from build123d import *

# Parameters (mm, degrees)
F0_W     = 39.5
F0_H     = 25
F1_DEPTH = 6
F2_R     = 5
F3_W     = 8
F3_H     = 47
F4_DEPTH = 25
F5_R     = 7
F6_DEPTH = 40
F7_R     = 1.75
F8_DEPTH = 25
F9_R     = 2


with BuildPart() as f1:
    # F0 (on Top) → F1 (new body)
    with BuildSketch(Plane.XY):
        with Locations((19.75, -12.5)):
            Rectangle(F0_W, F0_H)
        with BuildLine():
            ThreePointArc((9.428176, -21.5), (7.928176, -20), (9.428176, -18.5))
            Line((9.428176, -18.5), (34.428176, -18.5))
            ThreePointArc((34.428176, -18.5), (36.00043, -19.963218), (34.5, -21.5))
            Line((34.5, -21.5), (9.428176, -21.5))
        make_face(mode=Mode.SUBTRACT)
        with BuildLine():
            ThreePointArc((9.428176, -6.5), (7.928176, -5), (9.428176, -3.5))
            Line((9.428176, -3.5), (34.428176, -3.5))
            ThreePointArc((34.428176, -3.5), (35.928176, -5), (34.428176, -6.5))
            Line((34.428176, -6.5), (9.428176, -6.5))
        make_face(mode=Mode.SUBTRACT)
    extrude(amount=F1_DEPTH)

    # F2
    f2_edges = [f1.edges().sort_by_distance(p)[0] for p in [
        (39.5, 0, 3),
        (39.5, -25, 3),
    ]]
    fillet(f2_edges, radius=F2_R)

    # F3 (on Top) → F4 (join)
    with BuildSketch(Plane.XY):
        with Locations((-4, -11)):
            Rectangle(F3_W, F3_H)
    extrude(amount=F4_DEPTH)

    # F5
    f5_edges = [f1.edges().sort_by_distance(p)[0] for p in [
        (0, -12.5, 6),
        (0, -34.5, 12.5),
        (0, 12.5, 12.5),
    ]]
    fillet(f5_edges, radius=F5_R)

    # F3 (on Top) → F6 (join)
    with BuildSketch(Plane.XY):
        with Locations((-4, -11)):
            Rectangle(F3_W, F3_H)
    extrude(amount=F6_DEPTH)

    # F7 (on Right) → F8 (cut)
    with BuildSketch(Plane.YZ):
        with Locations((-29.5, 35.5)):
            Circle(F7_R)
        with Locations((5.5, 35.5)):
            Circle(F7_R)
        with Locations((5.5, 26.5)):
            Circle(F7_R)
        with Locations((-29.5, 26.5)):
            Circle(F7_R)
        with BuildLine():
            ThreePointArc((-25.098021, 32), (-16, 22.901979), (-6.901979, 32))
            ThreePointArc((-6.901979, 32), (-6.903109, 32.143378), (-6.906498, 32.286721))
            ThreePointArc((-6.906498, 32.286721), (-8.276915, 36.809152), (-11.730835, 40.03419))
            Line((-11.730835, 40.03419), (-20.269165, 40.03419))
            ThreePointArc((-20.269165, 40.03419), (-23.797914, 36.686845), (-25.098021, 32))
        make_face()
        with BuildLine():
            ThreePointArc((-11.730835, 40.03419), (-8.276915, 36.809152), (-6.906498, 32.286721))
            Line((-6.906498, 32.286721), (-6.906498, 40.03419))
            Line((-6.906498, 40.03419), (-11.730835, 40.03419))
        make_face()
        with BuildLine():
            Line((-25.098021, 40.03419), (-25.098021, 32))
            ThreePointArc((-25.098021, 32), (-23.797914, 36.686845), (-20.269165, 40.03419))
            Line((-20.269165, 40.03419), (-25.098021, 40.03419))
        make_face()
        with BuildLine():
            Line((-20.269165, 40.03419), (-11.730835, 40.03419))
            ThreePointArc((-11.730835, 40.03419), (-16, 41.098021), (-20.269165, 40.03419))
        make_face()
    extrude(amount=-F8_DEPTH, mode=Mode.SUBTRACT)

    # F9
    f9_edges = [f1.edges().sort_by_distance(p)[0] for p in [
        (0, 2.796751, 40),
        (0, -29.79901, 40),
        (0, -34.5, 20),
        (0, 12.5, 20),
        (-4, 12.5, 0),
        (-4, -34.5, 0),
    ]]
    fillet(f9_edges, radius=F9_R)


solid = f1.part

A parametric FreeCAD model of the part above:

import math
import FreeCAD as App
import Part
import Sketcher
from FreeCAD import Vector


def edges_at(feature, points):
    """Names of the edges that pass closest to the given points."""
    edges = feature.Shape.Edges
    near = lambda p: min(range(len(edges)), key=lambda i: edges[i].distToShape(Part.Vertex(*p))[0])
    return sorted({f"Edge{near(p) + 1}" for p in points})


def add_polygon(sketch, points):
    """Adds a closed chain of lines whose ends are joined by coincident constraints."""
    first, n = sketch.GeometryCount, len(points)
    for a, b in zip(points, points[1:] + points[:1]):
        sketch.addGeometry(Part.LineSegment(App.Vector(*a, 0), App.Vector(*b, 0)), False)
    for i in range(n):
        sketch.addConstraint(Sketcher.Constraint("Coincident", first + i, 2, first + (i + 1) % n, 1))

doc = App.newDocument("Part")
body = doc.addObject("PartDesign::Body", "Body")

# Sketch on XY plane
sketch1 = doc.addObject("Sketcher::SketchObject", "Sketch")
body.addObject(sketch1)
sketch1.AttachmentSupport = (doc.XY_Plane, [""])
sketch1.MapMode = "FlatFace"
add_polygon(sketch1, [(0, 0), (0, -25), (39.5, -25), (39.5, 0)])  # lines 0-3
sketch1.addGeometry(Part.LineSegment(Vector(34.5, -21.5, 0), Vector(9.428176, -21.5, 0)), False)  # 4
sketch1.addGeometry(Part.ArcOfCircle(Part.Circle(Vector(9.428176, -20, 0), Vector(0, 0, 1), 1.5), math.radians(90), math.radians(270)), False)  # 5
sketch1.addGeometry(Part.LineSegment(Vector(9.428176, -18.5, 0), Vector(34.428176, -18.5, 0)), False)  # 6
sketch1.addGeometry(Part.ArcOfCircle(Part.Circle(Vector(34.5, -19.99914, 0), Vector(0, 0, 1), 1.50086), math.radians(-90.000006), math.radians(92.742957)), False)  # 7
sketch1.addGeometry(Part.LineSegment(Vector(34.428176, -6.5, 0), Vector(9.428176, -6.5, 0)), False)  # 8
sketch1.addGeometry(Part.ArcOfCircle(Part.Circle(Vector(9.428176, -5, 0), Vector(0, 0, 1), 1.5), math.radians(90), math.radians(270)), False)  # 9
sketch1.addGeometry(Part.LineSegment(Vector(9.428176, -3.5, 0), Vector(34.428176, -3.5, 0)), False)  # 10
sketch1.addGeometry(Part.ArcOfCircle(Part.Circle(Vector(34.428176, -5, 0), Vector(0, 0, 1), 1.5), math.radians(-90), math.radians(90)), False)  # 11
sketch1.addConstraint([
    Sketcher.Constraint("Tangent", 4, 2, 5, 2),
    Sketcher.Constraint("Tangent", 5, 1, 6, 1),
    Sketcher.Constraint("Coincident", 6, 2, 7, 2),
    Sketcher.Constraint("Tangent", 7, 1, 4, 1),
    Sketcher.Constraint("Tangent", 8, 2, 9, 2),
    Sketcher.Constraint("Tangent", 9, 1, 10, 1),
    Sketcher.Constraint("Tangent", 10, 2, 11, 2),
    Sketcher.Constraint("Tangent", 11, 1, 8, 1),
    Sketcher.Constraint("Vertical", 0),
    Sketcher.Constraint("Horizontal", 1),
    Sketcher.Constraint("Vertical", 2),
    Sketcher.Constraint("Horizontal", 3),
    Sketcher.Constraint("Horizontal", 4),
    Sketcher.Constraint("Horizontal", 6),
    Sketcher.Constraint("Horizontal", 8),
    Sketcher.Constraint("Horizontal", 10),
    Sketcher.Constraint("Coincident", 3, 2, -1, 1),
    Sketcher.Constraint("Equal", 5, 9),
    Sketcher.Constraint("Vertical", 5, 3, 9, 3),
    Sketcher.Constraint("Vertical", 11, 3, 6, 2),
    Sketcher.Constraint("Equal", 10, 0),
    Sketcher.Constraint("Radius", 5, 1.5),
    Sketcher.Constraint("DistanceX", 6, 1, 6, 2, 25.0),
    Sketcher.Constraint("DistanceX", 1, 1, 1, 2, 39.5),
    Sketcher.Constraint("DistanceY", 5, 3, -1, 1, 20.0),
    Sketcher.Constraint("DistanceY", 9, 3, -1, 1, 5.0),
    Sketcher.Constraint("DistanceX", 7, 3, 1, 2, 5.0),
    Sketcher.Constraint("Radius", 7, 1.50086),
])
pad1 = doc.addObject("PartDesign::Pad", "Pad")
body.addObject(pad1)
pad1.Profile = sketch1
pad1.Length = 6
doc.recompute()

fillet = doc.addObject("PartDesign::Fillet", "Fillet")
body.addObject(fillet)
fillet.Base = (pad1, edges_at(pad1, [(39.5, 0, 3), (39.5, -25, 3)]))
fillet.Radius = 5

# Sketch on XY plane
sketch2 = doc.addObject("Sketcher::SketchObject", "Sketch001")
body.addObject(sketch2)
sketch2.AttachmentSupport = (doc.XY_Plane, [""])
sketch2.MapMode = "FlatFace"
add_polygon(sketch2, [(-8, 12.5), (-8, -34.5), (0, -34.5), (0, 12.5)])  # lines 0-3
sketch2.addConstraint([
    Sketcher.Constraint("Vertical", 0),
    Sketcher.Constraint("Horizontal", 1),
    Sketcher.Constraint("Vertical", 2),
    Sketcher.Constraint("Horizontal", 3),
    Sketcher.Constraint("PointOnObject", 1, 2, -2),
    Sketcher.Constraint("DistanceX", 1, 1, 1, 2, 8.0),
    Sketcher.Constraint("DistanceY", 0, 2, 0, 1, 47.0),
    Sketcher.Constraint("DistanceY", 0, 2, -1, 1, 34.5),
])
pad2 = doc.addObject("PartDesign::Pad", "Pad001")
body.addObject(pad2)
pad2.Profile = sketch2
pad2.Length = 25
doc.recompute()

fillet2 = doc.addObject("PartDesign::Fillet", "Fillet001")
body.addObject(fillet2)
fillet2.Base = (pad2, edges_at(pad2, [(0, -12.5, 6), (0, -34.5, 12.5), (0, 12.5, 12.5)]))
fillet2.Radius = 7

# Sketch on XY plane
sketch3 = doc.addObject("Sketcher::SketchObject", "Sketch002")
body.addObject(sketch3)
sketch3.AttachmentSupport = (doc.XY_Plane, [""])
sketch3.MapMode = "FlatFace"
add_polygon(sketch3, [(-8, 12.5), (-8, -34.5), (0, -34.5), (0, 12.5)])  # lines 0-3
sketch3.addConstraint([
    Sketcher.Constraint("Vertical", 0),
    Sketcher.Constraint("Horizontal", 1),
    Sketcher.Constraint("Vertical", 2),
    Sketcher.Constraint("Horizontal", 3),
    Sketcher.Constraint("PointOnObject", 1, 2, -2),
    Sketcher.Constraint("DistanceX", 1, 1, 1, 2, 8.0),
    Sketcher.Constraint("DistanceY", 0, 2, 0, 1, 47.0),
    Sketcher.Constraint("DistanceY", 0, 2, -1, 1, 34.5),
])
pad3 = doc.addObject("PartDesign::Pad", "Pad002")
body.addObject(pad3)
pad3.Profile = sketch3
pad3.Length = 40

# Sketch on YZ plane
sketch4 = doc.addObject("Sketcher::SketchObject", "Sketch003")
body.addObject(sketch4)
sketch4.AttachmentSupport = (doc.YZ_Plane, [""])
sketch4.MapMode = "FlatFace"
sketch4.addGeometry([
    Part.Circle(Vector(-29.5, 35.5, 0), Vector(0, 0, 1), 1.75),  # 0
    Part.Circle(Vector(5.5, 35.5, 0), Vector(0, 0, 1), 1.75),  # 1
    Part.Circle(Vector(5.5, 26.5, 0), Vector(0, 0, 1), 1.75),  # 2
    Part.Circle(Vector(-29.5, 26.5, 0), Vector(0, 0, 1), 1.75),  # 3
    Part.ArcOfCircle(Part.Circle(Vector(-16, 32, 0), Vector(0, 0, 1), 9.098021), math.radians(180), math.radians(360)),  # 4
    Part.ArcOfCircle(Part.Circle(Vector(-16.001646, 31.999977, 0), Vector(0, 0, 1), 9.099667), math.radians(0.000148), math.radians(1.805777)),  # 5
    Part.LineSegment(Vector(-6.906498, 32.286721, 0), Vector(-6.906498, 40.03419, 0)),  # 6
    Part.LineSegment(Vector(-6.906498, 40.03419, 0), Vector(-11.730835, 40.03419, 0)),  # 7
    Part.ArcOfCircle(Part.Circle(Vector(-16, 32.000003, 0), Vector(0, 0, 1), 9.098018), math.radians(62.014945), math.radians(117.985055)),  # 8
    Part.LineSegment(Vector(-20.269165, 40.03419, 0), Vector(-25.098021, 40.03419, 0)),  # 9
    Part.LineSegment(Vector(-25.098021, 40.03419, 0), Vector(-25.098021, 32, 0)),  # 10
], False)
sketch4.addConstraint([
    Sketcher.Constraint("Coincident", 4, 2, 5, 1),
    Sketcher.Constraint("Coincident", 5, 2, 6, 1),
    Sketcher.Constraint("Coincident", 6, 2, 7, 1),
    Sketcher.Constraint("Coincident", 7, 2, 8, 1),
    Sketcher.Constraint("Coincident", 8, 2, 9, 1),
    Sketcher.Constraint("Coincident", 9, 2, 10, 1),
    Sketcher.Constraint("Tangent", 10, 2, 4, 1),
    Sketcher.Constraint("Vertical", 6),
    Sketcher.Constraint("Horizontal", 7),
    Sketcher.Constraint("Horizontal", 9),
    Sketcher.Constraint("Vertical", 10),
    Sketcher.Constraint("Coincident", 8, 3, 4, 3),
    Sketcher.Constraint("Equal", 0, 1),
    Sketcher.Constraint("Equal", 1, 2),
    Sketcher.Constraint("Equal", 2, 3),
    Sketcher.Constraint("Horizontal", 0, 3, 1, 3),
    Sketcher.Constraint("Horizontal", 2, 3, 3, 3),
    Sketcher.Constraint("Horizontal", 7, 2, 8, 2),
    Sketcher.Constraint("Horizontal", 4, 2, 10, 2),
    Sketcher.Constraint("Vertical", 1, 3, 2, 3),
    Sketcher.Constraint("Vertical", 0, 3, 3, 3),
    Sketcher.Constraint("Diameter", 0, 3.5),
    Sketcher.Constraint("DistanceX", 4, 3, -1, 1, 16.0),
    Sketcher.Constraint("DistanceY", -1, 1, 4, 3, 32.0),
    Sketcher.Constraint("DistanceX", 0, 3, 1, 3, 35.0),
    Sketcher.Constraint("DistanceY", 2, 3, 1, 3, 9.0),
    Sketcher.Constraint("DistanceX", 0, 3, -1, 1, 29.5),
    Sketcher.Constraint("DistanceY", -1, 1, 0, 3, 35.5),
    Sketcher.Constraint("Radius", 4, 9.098021),
    Sketcher.Constraint("Radius", 5, 9.099667),
    Sketcher.Constraint("Radius", 8, 9.098018),
    Sketcher.Constraint("DistanceY", 6, 1, 6, 2, 7.747469),
    Sketcher.Constraint("DistanceY", 10, 2, 10, 1, 8.03419),
    Sketcher.Constraint("DistanceX", 5, 2, -1, 1, 6.906498),
])
pocket1 = doc.addObject("PartDesign::Pocket", "Pocket")
body.addObject(pocket1)
pocket1.Profile = sketch4
pocket1.Length = 25
doc.recompute()

fillet3 = doc.addObject("PartDesign::Fillet", "Fillet002")
body.addObject(fillet3)
fillet3.Base = (pocket1, edges_at(pocket1, [
    (0, 2.797, 40),
    (0, -29.799, 40),
    (0, -34.5, 20),
    (0, 12.5, 20),
    (-4, 12.5, 0),
    (-4, -34.5, 0),
]))
fillet3.Radius = 2

doc.recompute()
